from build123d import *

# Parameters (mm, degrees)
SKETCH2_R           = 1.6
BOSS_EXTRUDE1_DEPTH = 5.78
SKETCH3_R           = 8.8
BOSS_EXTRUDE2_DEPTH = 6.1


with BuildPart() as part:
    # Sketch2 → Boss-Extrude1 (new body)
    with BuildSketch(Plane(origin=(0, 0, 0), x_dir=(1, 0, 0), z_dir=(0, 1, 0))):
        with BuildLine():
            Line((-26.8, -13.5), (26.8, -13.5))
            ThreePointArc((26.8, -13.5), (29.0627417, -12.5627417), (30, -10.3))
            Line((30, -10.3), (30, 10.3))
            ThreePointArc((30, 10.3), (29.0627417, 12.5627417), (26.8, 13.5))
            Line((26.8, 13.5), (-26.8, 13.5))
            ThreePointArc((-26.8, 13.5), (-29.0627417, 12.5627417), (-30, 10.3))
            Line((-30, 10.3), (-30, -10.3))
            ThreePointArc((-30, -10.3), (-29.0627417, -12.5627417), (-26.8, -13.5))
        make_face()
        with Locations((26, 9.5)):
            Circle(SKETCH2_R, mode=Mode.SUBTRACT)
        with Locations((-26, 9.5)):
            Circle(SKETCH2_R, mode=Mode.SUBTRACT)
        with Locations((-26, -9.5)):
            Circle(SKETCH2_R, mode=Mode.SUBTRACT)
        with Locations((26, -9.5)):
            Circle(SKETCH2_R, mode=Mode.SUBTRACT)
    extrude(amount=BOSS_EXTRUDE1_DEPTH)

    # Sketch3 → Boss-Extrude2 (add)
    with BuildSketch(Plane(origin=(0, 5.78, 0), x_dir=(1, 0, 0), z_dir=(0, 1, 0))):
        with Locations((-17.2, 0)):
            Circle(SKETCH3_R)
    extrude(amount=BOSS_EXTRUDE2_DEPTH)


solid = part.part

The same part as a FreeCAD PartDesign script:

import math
import FreeCAD as App
import Part
import Sketcher

V = App.Vector

doc = App.newDocument("Part")
body = doc.addObject("PartDesign::Body", "Body")

sketch1 = body.newObject("Sketcher::SketchObject", "Sketch")
sketch1.AttachmentSupport = (doc.getObject("XZ_Plane"), [""])
sketch1.MapMode = "FlatFace"
sketch1.addGeometry(Part.LineSegment(V(-26.8, 13.5, 0), V(26.8, 13.5, 0)), False)
sketch1.addGeometry(Part.ArcOfCircle(Part.Circle(V(26.8, 10.3, 0), V(0, 0, 1), 3.2), math.radians(0), math.radians(90)), False)
sketch1.addGeometry(Part.LineSegment(V(30, 10.3, 0), V(30, -10.3, 0)), False)
sketch1.addGeometry(Part.ArcOfCircle(Part.Circle(V(26.8, -10.3, 0), V(0, 0, 1), 3.2), math.radians(-90), math.radians(0)), False)
sketch1.addGeometry(Part.LineSegment(V(26.8, -13.5, 0), V(-26.8, -13.5, 0)), False)
sketch1.addGeometry(Part.ArcOfCircle(Part.Circle(V(-26.8, -10.3, 0), V(0, 0, 1), 3.2), math.radians(180), math.radians(270)), False)
sketch1.addGeometry(Part.LineSegment(V(-30, -10.3, 0), V(-30, 10.3, 0)), False)
sketch1.addGeometry(Part.ArcOfCircle(Part.Circle(V(-26.8, 10.3, 0), V(0, 0, 1), 3.2), math.radians(90), math.radians(180)), False)
sketch1.addGeometry(Part.Circle(V(-26, 9.5, 0), V(0, 0, 1), 1.6), False)
sketch1.addGeometry(Part.Circle(V(26, 9.5, 0), V(0, 0, 1), 1.6), False)
sketch1.addGeometry(Part.Circle(V(-26, -9.5, 0), V(0, 0, 1), 1.6), False)
sketch1.addGeometry(Part.Circle(V(26, -9.5, 0), V(0, 0, 1), 1.6), False)
sketch1.addConstraint(Sketcher.Constraint("Tangent", 0, 2, 1, 2))
sketch1.addConstraint(Sketcher.Constraint("Tangent", 1, 1, 2, 1))
sketch1.addConstraint(Sketcher.Constraint("Tangent", 2, 2, 3, 2))
sketch1.addConstraint(Sketcher.Constraint("Tangent", 3, 1, 4, 1))
sketch1.addConstraint(Sketcher.Constraint("Tangent", 4, 2, 5, 2))
sketch1.addConstraint(Sketcher.Constraint("Tangent", 5, 1, 6, 1))
sketch1.addConstraint(Sketcher.Constraint("Tangent", 6, 2, 7, 2))
sketch1.addConstraint(Sketcher.Constraint("Tangent", 7, 1, 0, 1))
sketch1.addConstraint(Sketcher.Constraint("Horizontal", 0))
sketch1.addConstraint(Sketcher.Constraint("Vertical", 2))
sketch1.addConstraint(Sketcher.Constraint("Horizontal", 4))
sketch1.addConstraint(Sketcher.Constraint("Vertical", 6))
sketch1.addConstraint(Sketcher.Constraint("Equal", 1, 3))
sketch1.addConstraint(Sketcher.Constraint("Equal", 3, 5))
sketch1.addConstraint(Sketcher.Constraint("Equal", 5, 7))
sketch1.addConstraint(Sketcher.Constraint("Equal", 8, 9))
sketch1.addConstraint(Sketcher.Constraint("Equal", 9, 10))
sketch1.addConstraint(Sketcher.Constraint("Equal", 10, 11))
sketch1.addConstraint(Sketcher.Constraint("Symmetric", 1, 3, 5, 3, -1, 1))
sketch1.addConstraint(Sketcher.Constraint("Symmetric", 9, 3, 10, 3, -1, 1))
sketch1.addConstraint(Sketcher.Constraint("Symmetric", 8, 3, 11, 3, -1, 1))
sketch1.addConstraint(Sketcher.Constraint("Symmetric", 8, 3, 9, 3, -2))
sketch1.addConstraint(Sketcher.Constraint("Diameter", 8, 3.2))
sketch1.addConstraint(Sketcher.Constraint("Radius", 1, 3.2))
sketch1.addConstraint(Sketcher.Constraint("DistanceX", 0, 1, 0, 2, 53.6))
sketch1.addConstraint(Sketcher.Constraint("DistanceY", 2, 2, 2, 1, 20.6))
sketch1.addConstraint(Sketcher.Constraint("DistanceX", 8, 3, -1, 1, 26.0))
sketch1.addConstraint(Sketcher.Constraint("DistanceY", 10, 3, 8, 3, 19.0))
pad1 = body.newObject("PartDesign::Pad", "Pad")
pad1.Profile = sketch1
pad1.Length = 5.78
pad1.Reversed = True

sketch2 = body.newObject("Sketcher::SketchObject", "Sketch001")
sketch2.AttachmentSupport = (doc.getObject("XZ_Plane"), [""])
sketch2.MapMode = "FlatFace"
sketch2.AttachmentOffset = App.Placement(V(0, 0, -5.78), App.Rotation())
sketch2.addGeometry(Part.Circle(V(-17.2, 0, 0), V(0, 0, 1), 8.8), False)
sketch2.addConstraint(Sketcher.Constraint("PointOnObject", 0, 3, -1))
sketch2.addConstraint(Sketcher.Constraint("Diameter", 0, 17.6))
sketch2.addConstraint(Sketcher.Constraint("DistanceX", 0, 3, -1, 1, 17.2))
pad2 = body.newObject("PartDesign::Pad", "Pad001")
pad2.Profile = sketch2
pad2.Length = 6.1
pad2.Reversed = True

doc.recompute()
